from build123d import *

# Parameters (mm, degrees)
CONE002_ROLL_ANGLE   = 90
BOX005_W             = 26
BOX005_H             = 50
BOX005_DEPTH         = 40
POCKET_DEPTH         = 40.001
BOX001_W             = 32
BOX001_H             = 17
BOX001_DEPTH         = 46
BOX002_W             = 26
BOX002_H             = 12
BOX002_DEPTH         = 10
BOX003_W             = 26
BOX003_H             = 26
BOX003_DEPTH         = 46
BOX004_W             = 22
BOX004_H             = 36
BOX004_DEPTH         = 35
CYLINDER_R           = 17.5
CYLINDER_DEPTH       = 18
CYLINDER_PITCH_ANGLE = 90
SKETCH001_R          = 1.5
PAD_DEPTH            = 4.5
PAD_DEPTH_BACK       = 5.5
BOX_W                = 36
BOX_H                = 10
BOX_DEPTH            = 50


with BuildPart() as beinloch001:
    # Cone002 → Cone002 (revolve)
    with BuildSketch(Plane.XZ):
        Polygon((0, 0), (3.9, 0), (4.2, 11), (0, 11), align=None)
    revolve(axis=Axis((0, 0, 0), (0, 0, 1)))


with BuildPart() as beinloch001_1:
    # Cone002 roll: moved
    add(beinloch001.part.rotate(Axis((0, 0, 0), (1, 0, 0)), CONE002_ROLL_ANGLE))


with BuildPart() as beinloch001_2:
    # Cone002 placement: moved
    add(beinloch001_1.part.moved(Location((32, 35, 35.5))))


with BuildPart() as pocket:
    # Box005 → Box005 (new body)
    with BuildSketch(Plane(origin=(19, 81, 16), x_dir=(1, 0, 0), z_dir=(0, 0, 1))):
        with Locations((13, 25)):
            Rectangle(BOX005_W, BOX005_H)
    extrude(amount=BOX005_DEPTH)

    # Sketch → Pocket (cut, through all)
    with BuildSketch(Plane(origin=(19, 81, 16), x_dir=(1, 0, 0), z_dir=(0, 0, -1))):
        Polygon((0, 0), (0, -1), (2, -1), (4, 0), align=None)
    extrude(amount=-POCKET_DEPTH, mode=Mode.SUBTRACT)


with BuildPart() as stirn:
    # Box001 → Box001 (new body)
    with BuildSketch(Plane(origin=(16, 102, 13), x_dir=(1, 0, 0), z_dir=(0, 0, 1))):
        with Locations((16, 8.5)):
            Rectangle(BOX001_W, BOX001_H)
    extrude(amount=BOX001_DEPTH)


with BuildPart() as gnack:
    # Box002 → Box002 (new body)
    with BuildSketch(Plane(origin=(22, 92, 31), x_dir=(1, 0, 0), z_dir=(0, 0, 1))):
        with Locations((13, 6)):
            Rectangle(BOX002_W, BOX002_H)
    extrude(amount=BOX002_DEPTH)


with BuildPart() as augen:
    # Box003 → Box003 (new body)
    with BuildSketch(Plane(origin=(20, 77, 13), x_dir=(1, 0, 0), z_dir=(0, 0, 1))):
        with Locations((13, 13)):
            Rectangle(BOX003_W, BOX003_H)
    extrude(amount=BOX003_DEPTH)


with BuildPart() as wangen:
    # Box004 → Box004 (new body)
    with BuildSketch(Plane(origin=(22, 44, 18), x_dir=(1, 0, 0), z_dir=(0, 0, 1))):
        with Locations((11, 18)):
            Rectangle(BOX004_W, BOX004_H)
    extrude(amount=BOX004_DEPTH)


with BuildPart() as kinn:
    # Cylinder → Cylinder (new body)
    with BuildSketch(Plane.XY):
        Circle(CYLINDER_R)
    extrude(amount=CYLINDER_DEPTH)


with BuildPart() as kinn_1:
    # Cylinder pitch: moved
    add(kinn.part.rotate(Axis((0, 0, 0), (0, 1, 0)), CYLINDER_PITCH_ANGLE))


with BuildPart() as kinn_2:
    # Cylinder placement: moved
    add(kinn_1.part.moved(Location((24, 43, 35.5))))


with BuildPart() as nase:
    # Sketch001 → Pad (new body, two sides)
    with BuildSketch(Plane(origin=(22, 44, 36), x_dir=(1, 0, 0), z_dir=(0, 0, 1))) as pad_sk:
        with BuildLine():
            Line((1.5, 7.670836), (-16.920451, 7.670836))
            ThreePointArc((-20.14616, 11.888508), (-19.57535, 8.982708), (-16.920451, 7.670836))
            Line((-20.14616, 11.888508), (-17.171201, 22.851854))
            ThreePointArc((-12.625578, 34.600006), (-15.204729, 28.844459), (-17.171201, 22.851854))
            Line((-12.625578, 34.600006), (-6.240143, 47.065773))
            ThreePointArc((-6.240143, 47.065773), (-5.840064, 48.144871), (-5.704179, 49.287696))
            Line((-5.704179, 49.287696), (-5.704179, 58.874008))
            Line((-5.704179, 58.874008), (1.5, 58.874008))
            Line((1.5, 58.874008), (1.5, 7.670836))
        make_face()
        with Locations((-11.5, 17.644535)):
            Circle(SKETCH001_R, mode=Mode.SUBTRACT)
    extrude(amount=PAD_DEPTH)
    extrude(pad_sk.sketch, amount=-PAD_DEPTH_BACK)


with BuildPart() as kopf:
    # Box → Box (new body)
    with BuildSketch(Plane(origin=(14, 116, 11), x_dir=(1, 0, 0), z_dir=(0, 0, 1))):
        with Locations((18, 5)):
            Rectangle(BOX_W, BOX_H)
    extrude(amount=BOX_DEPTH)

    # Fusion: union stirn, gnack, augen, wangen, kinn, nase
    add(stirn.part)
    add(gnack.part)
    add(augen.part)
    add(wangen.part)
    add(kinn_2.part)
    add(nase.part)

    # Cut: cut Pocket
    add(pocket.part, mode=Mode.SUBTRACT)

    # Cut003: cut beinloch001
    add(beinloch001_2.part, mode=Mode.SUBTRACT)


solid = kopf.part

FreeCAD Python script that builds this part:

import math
import FreeCAD as App
import Part
import Sketcher
Q = App.Units.Quantity

doc = App.newDocument("Part")
body = doc.addObject("PartDesign::Body", "Body")

sketch1 = doc.addObject("Sketcher::SketchObject", "Sketch")
body.addObject(sketch1)
sketch1.AttachmentSupport = (doc.XZ_Plane, [""])
sketch1.MapMode = "FlatFace"
sketch1.addGeometry([
    Part.LineSegment(App.Vector(0, 0, 0), App.Vector(3.9, 0, 0)),
    Part.LineSegment(App.Vector(3.9, 0, 0), App.Vector(4.2, 11, 0)),
    Part.LineSegment(App.Vector(4.2, 11, 0), App.Vector(0, 11, 0)),
    Part.LineSegment(App.Vector(0, 11, 0), App.Vector(0, 0, 0)),
], False)
sketch1.addConstraint([
    Sketcher.Constraint("Coincident", 0, 2, 1, 1),
    Sketcher.Constraint("Coincident", 1, 2, 2, 1),
    Sketcher.Constraint("Coincident", 2, 2, 3, 1),
    Sketcher.Constraint("Coincident", 3, 2, 0, 1),
    Sketcher.Constraint("Horizontal", 0),
    Sketcher.Constraint("Horizontal", 2),
    Sketcher.Constraint("Vertical", 3),
    Sketcher.Constraint("Coincident", 3, 2, -1, 1),
    Sketcher.Constraint("DistanceY", 3, 2, 3, 1, Q("11 mm")),
    Sketcher.Constraint("DistanceX", 0, 1, 0, 2, Q("3.9 mm")),
    Sketcher.Constraint("DistanceX", 2, 2, 2, 1, Q("4.2 mm")),
])
revolution = doc.addObject("PartDesign::Revolution", "Revolution")
body.addObject(revolution)
revolution.Profile = sketch1
revolution.ReferenceAxis = (sketch1, ["V_Axis"])
revolution.Angle = 360
body2 = doc.addObject("PartDesign::Body", "Body001")
doc.recompute()

body.Placement = App.Placement(App.Vector(0, 0, 0), App.Rotation(App.Vector(1, 0, 0), 90))
boolean = doc.addObject("PartDesign::Boolean", "Boolean")
body2.addObject(boolean)
boolean.Type = "Fuse"
boolean.addObjects([body])
body3 = doc.addObject("PartDesign::Body", "Body002")
doc.recompute()

body2.Placement = App.Placement(App.Vector(32, 35, 35.5), App.Rotation(App.Vector(0, 0, 1), 0))
boolean2 = doc.addObject("PartDesign::Boolean", "Boolean001")
body3.addObject(boolean2)
boolean2.Type = "Fuse"
boolean2.addObjects([body2])
body4 = doc.addObject("PartDesign::Body", "Body003")

sketch2 = doc.addObject("Sketcher::SketchObject", "Sketch001")
body4.addObject(sketch2)
sketch2.AttachmentSupport = (doc.getObject("XY_Plane003"), [""])
sketch2.MapMode = "FlatFace"
sketch2.AttachmentOffset = App.Placement(App.Vector(0, 0, 16), App.Rotation())
sketch2.addGeometry([
    Part.LineSegment(App.Vector(19, 131, 0), App.Vector(19, 81, 0)),
    Part.LineSegment(App.Vector(19, 81, 0), App.Vector(45, 81, 0)),
    Part.LineSegment(App.Vector(45, 81, 0), App.Vector(45, 131, 0)),
    Part.LineSegment(App.Vector(45, 131, 0), App.Vector(19, 131, 0)),
], False)
sketch2.addConstraint([
    Sketcher.Constraint("Coincident", 0, 2, 1, 1),
    Sketcher.Constraint("Coincident", 1, 2, 2, 1),
    Sketcher.Constraint("Coincident", 2, 2, 3, 1),
    Sketcher.Constraint("Coincident", 3, 2, 0, 1),
    Sketcher.Constraint("Vertical", 0),
    Sketcher.Constraint("Horizontal", 1),
    Sketcher.Constraint("Vertical", 2),
    Sketcher.Constraint("Horizontal", 3),
    Sketcher.Constraint("DistanceX", 1, 1, 1, 2, Q("26 mm")),
    Sketcher.Constraint("DistanceY", 0, 2, 0, 1, Q("50 mm")),
    Sketcher.Constraint("DistanceX", -1, 1, 0, 2, Q("19 mm")),
    Sketcher.Constraint("DistanceY", -1, 1, 0, 2, Q("81 mm")),
])
pad1 = doc.addObject("PartDesign::Pad", "Pad")
body4.addObject(pad1)
pad1.Profile = sketch2
pad1.Length = 40

sketch3 = doc.addObject("Sketcher::SketchObject", "Sketch002")
body4.addObject(sketch3)
sketch3.AttachmentSupport = (doc.getObject("XY_Plane003"), [""])
sketch3.MapMode = "FlatFace"
sketch3.AttachmentOffset = App.Placement(App.Vector(0, 0, 16), App.Rotation())
sketch3.addGeometry([
    Part.LineSegment(App.Vector(19, 81, 0), App.Vector(19, 82, 0)),
    Part.LineSegment(App.Vector(19, 82, 0), App.Vector(21, 82, 0)),
    Part.LineSegment(App.Vector(21, 82, 0), App.Vector(23, 81, 0)),
    Part.LineSegment(App.Vector(23, 81, 0), App.Vector(19, 81, 0)),
], False)
sketch3.addConstraint([
    Sketcher.Constraint("Coincident", 0, 2, 1, 1),
    Sketcher.Constraint("Coincident", 1, 2, 2, 1),
    Sketcher.Constraint("Coincident", 2, 2, 3, 1),
    Sketcher.Constraint("Coincident", 3, 2, 0, 1),
    Sketcher.Constraint("Vertical", 0),
    Sketcher.Constraint("Horizontal", 1),
    Sketcher.Constraint("Horizontal", 3),
    Sketcher.Constraint("DistanceX", 1, 1, 1, 2, Q("2 mm")),
    Sketcher.Constraint("DistanceX", 3, 2, 3, 1, Q("4 mm")),
    Sketcher.Constraint("DistanceY", 0, 1, 0, 2, Q("1 mm")),
    Sketcher.Constraint("DistanceX", -1, 1, 0, 2, Q("19 mm")),
    Sketcher.Constraint("DistanceY", -1, 1, 0, 2, Q("82 mm")),
])
pocket1 = doc.addObject("PartDesign::Pocket", "Pocket")
body4.addObject(pocket1)
pocket1.Profile = sketch3
pocket1.Type = "ThroughAll"
pocket1.Reversed = True
body5 = doc.addObject("PartDesign::Body", "Body004")

sketch4 = doc.addObject("Sketcher::SketchObject", "Sketch003")
body5.addObject(sketch4)
sketch4.AttachmentSupport = (doc.getObject("XY_Plane004"), [""])
sketch4.MapMode = "FlatFace"
sketch4.AttachmentOffset = App.Placement(App.Vector(0, 0, 13), App.Rotation())
sketch4.addGeometry([
    Part.LineSegment(App.Vector(16, 119, 0), App.Vector(16, 102, 0)),
    Part.LineSegment(App.Vector(16, 102, 0), App.Vector(48, 102, 0)),
    Part.LineSegment(App.Vector(48, 102, 0), App.Vector(48, 119, 0)),
    Part.LineSegment(App.Vector(48, 119, 0), App.Vector(16, 119, 0)),
], False)
sketch4.addConstraint([
    Sketcher.Constraint("Coincident", 0, 2, 1, 1),
    Sketcher.Constraint("Coincident", 1, 2, 2, 1),
    Sketcher.Constraint("Coincident", 2, 2, 3, 1),
    Sketcher.Constraint("Coincident", 3, 2, 0, 1),
    Sketcher.Constraint("Vertical", 0),
    Sketcher.Constraint("Horizontal", 1),
    Sketcher.Constraint("Vertical", 2),
    Sketcher.Constraint("Horizontal", 3),
    Sketcher.Constraint("DistanceX", 1, 1, 1, 2, Q("32 mm")),
    Sketcher.Constraint("DistanceY", 0, 2, 0, 1, Q("17 mm")),
    Sketcher.Constraint("DistanceX", -1, 1, 0, 2, Q("16 mm")),
    Sketcher.Constraint("DistanceY", -1, 1, 0, 2, Q("102 mm")),
])
pad2 = doc.addObject("PartDesign::Pad", "Pad001")
body5.addObject(pad2)
pad2.Profile = sketch4
pad2.Length = 46
body6 = doc.addObject("PartDesign::Body", "Body005")

sketch5 = doc.addObject("Sketcher::SketchObject", "Sketch004")
body6.addObject(sketch5)
sketch5.AttachmentSupport = (doc.getObject("XY_Plane005"), [""])
sketch5.MapMode = "FlatFace"
sketch5.AttachmentOffset = App.Placement(App.Vector(0, 0, 31), App.Rotation())
sketch5.addGeometry([
    Part.LineSegment(App.Vector(22, 104, 0), App.Vector(22, 92, 0)),
    Part.LineSegment(App.Vector(22, 92, 0), App.Vector(48, 92, 0)),
    Part.LineSegment(App.Vector(48, 92, 0), App.Vector(48, 104, 0)),
    Part.LineSegment(App.Vector(48, 104, 0), App.Vector(22, 104, 0)),
], False)
sketch5.addConstraint([
    Sketcher.Constraint("Coincident", 0, 2, 1, 1),
    Sketcher.Constraint("Coincident", 1, 2, 2, 1),
    Sketcher.Constraint("Coincident", 2, 2, 3, 1),
    Sketcher.Constraint("Coincident", 3, 2, 0, 1),
    Sketcher.Constraint("Vertical", 0),
    Sketcher.Constraint("Horizontal", 1),
    Sketcher.Constraint("Vertical", 2),
    Sketcher.Constraint("Horizontal", 3),
    Sketcher.Constraint("DistanceX", 1, 1, 1, 2, Q("26 mm")),
    Sketcher.Constraint("DistanceY", 0, 2, 0, 1, Q("12 mm")),
    Sketcher.Constraint("DistanceX", -1, 1, 0, 2, Q("22 mm")),
    Sketcher.Constraint("DistanceY", -1, 1, 0, 2, Q("92 mm")),
])
pad3 = doc.addObject("PartDesign::Pad", "Pad002")
body6.addObject(pad3)
pad3.Profile = sketch5
pad3.Length = 10
body7 = doc.addObject("PartDesign::Body", "Body006")

sketch6 = doc.addObject("Sketcher::SketchObject", "Sketch005")
body7.addObject(sketch6)
sketch6.AttachmentSupport = (doc.getObject("XY_Plane006"), [""])
sketch6.MapMode = "FlatFace"
sketch6.AttachmentOffset = App.Placement(App.Vector(0, 0, 13), App.Rotation())
sketch6.addGeometry([
    Part.LineSegment(App.Vector(20, 103, 0), App.Vector(20, 77, 0)),
    Part.LineSegment(App.Vector(20, 77, 0), App.Vector(46, 77, 0)),
    Part.LineSegment(App.Vector(46, 77, 0), App.Vector(46, 103, 0)),
    Part.LineSegment(App.Vector(46, 103, 0), App.Vector(20, 103, 0)),
], False)
sketch6.addConstraint([
    Sketcher.Constraint("Coincident", 0, 2, 1, 1),
    Sketcher.Constraint("Coincident", 1, 2, 2, 1),
    Sketcher.Constraint("Coincident", 2, 2, 3, 1),
    Sketcher.Constraint("Coincident", 3, 2, 0, 1),
    Sketcher.Constraint("Vertical", 0),
    Sketcher.Constraint("Horizontal", 1),
    Sketcher.Constraint("Vertical", 2),
    Sketcher.Constraint("Horizontal", 3),
    Sketcher.Constraint("Equal", 3, 0),
    Sketcher.Constraint("DistanceX", 1, 1, 1, 2, Q("26 mm")),
    Sketcher.Constraint("DistanceX", -1, 1, 0, 2, Q("20 mm")),
    Sketcher.Constraint("DistanceY", -1, 1, 0, 2, Q("77 mm")),
])
pad4 = doc.addObject("PartDesign::Pad", "Pad003")
body7.addObject(pad4)
pad4.Profile = sketch6
pad4.Length = 46
body8 = doc.addObject("PartDesign::Body", "Body007")

sketch7 = doc.addObject("Sketcher::SketchObject", "Sketch006")
body8.addObject(sketch7)
sketch7.AttachmentSupport = (doc.getObject("XY_Plane007"), [""])
sketch7.MapMode = "FlatFace"
sketch7.AttachmentOffset = App.Placement(App.Vector(0, 0, 18), App.Rotation())
sketch7.addGeometry([
    Part.LineSegment(App.Vector(22, 80, 0), App.Vector(22, 44, 0)),
    Part.LineSegment(App.Vector(22, 44, 0), App.Vector(44, 44, 0)),
    Part.LineSegment(App.Vector(44, 44, 0), App.Vector(44, 80, 0)),
    Part.LineSegment(App.Vector(44, 80, 0), App.Vector(22, 80, 0)),
], False)
sketch7.addConstraint([
    Sketcher.Constraint("Coincident", 0, 2, 1, 1),
    Sketcher.Constraint("Coincident", 1, 2, 2, 1),
    Sketcher.Constraint("Coincident", 2, 2, 3, 1),
    Sketcher.Constraint("Coincident", 3, 2, 0, 1),
    Sketcher.Constraint("Vertical", 0),
    Sketcher.Constraint("Horizontal", 1),
    Sketcher.Constraint("Vertical", 2),
    Sketcher.Constraint("Horizontal", 3),
    Sketcher.Constraint("DistanceX", 1, 1, 1, 2, Q("22 mm")),
    Sketcher.Constraint("DistanceY", 0, 2, 0, 1, Q("36 mm")),
    Sketcher.Constraint("DistanceX", -1, 1, 0, 2, Q("22 mm")),
    Sketcher.Constraint("DistanceY", -1, 1, 0, 2, Q("44 mm")),
])
pad5 = doc.addObject("PartDesign::Pad", "Pad004")
body8.addObject(pad5)
pad5.Profile = sketch7
pad5.Length = 35
body9 = doc.addObject("PartDesign::Body", "Body008")

sketch8 = doc.addObject("Sketcher::SketchObject", "Sketch007")
body9.addObject(sketch8)
sketch8.AttachmentSupport = (doc.getObject("XY_Plane008"), [""])
sketch8.MapMode = "FlatFace"
sketch8.addGeometry(Part.Circle(App.Vector(0, 0, 0), App.Vector(0, 0, 1), 18), False)
sketch8.addConstraint([
    Sketcher.Constraint("Coincident", 0, 3, -1, 1),
    Sketcher.Constraint("Diameter", 0, Q("35 mm")),
])
pad6 = doc.addObject("PartDesign::Pad", "Pad005")
body9.addObject(pad6)
pad6.Profile = sketch8
pad6.Length = 18
body10 = doc.addObject("PartDesign::Body", "Body009")
doc.recompute()

body9.Placement = App.Placement(App.Vector(0, 0, 0), App.Rotation(App.Vector(0, 1, 0), 90))
boolean3 = doc.addObject("PartDesign::Boolean", "Boolean002")
body10.addObject(boolean3)
boolean3.Type = "Fuse"
boolean3.addObjects([body9])
body11 = doc.addObject("PartDesign::Body", "Body010")
doc.recompute()

body10.Placement = App.Placement(App.Vector(24, 43, 35.5), App.Rotation(App.Vector(0, 0, 1), 0))
boolean4 = doc.addObject("PartDesign::Boolean", "Boolean003")
body11.addObject(boolean4)
boolean4.Type = "Fuse"
boolean4.addObjects([body10])
body12 = doc.addObject("PartDesign::Body", "Body011")

sketch9 = doc.addObject("Sketcher::SketchObject", "Sketch008")
body12.addObject(sketch9)
sketch9.AttachmentSupport = (doc.getObject("XY_Plane011"), [""])
sketch9.MapMode = "FlatFace"
sketch9.AttachmentOffset = App.Placement(App.Vector(0, 0, 36), App.Rotation())
sketch9.addGeometry([
    Part.LineSegment(App.Vector(5.1, 51.7, 0), App.Vector(23.5, 51.7, 0)),
    Part.LineSegment(App.Vector(23.5, 51.7, 0), App.Vector(23.5, 102.9, 0)),
    Part.LineSegment(App.Vector(23.5, 102.9, 0), App.Vector(16.3, 102.9, 0)),
    Part.LineSegment(App.Vector(16.3, 102.9, 0), App.Vector(16.3, 93.3, 0)),
    Part.ArcOfCircle(Part.Circle(App.Vector(11.4, 93.3, 0), App.Vector(0, 0, 1), 4.9), math.radians(-27), math.radians(0)),
    Part.LineSegment(App.Vector(15.8, 91.1, 0), App.Vector(9.4, 78.6, 0)),
    Part.ArcOfCircle(Part.Circle(App.Vector(63.3, 51, 0), App.Vector(0, 0, 1), 60.6), math.radians(152.88), math.radians(164.82)),
    Part.LineSegment(App.Vector(4.8, 66.9, 0), App.Vector(1.9, 55.9, 0)),
    Part.ArcOfCircle(Part.Circle(App.Vector(5.1, 55, 0), App.Vector(0, 0, 1), 3.3), math.radians(165), math.radians(270)),
    Part.Circle(App.Vector(10.5, 61.6, 0), App.Vector(0, 0, 1), 1.5),
], False)
sketch9.addConstraint([
    Sketcher.Constraint("Coincident", 0, 2, 1, 1),
    Sketcher.Constraint("Coincident", 1, 2, 2, 1),
    Sketcher.Constraint("Coincident", 2, 2, 3, 1),
    Sketcher.Constraint("Tangent", 3, 2, 4, 2),
    Sketcher.Constraint("Tangent", 4, 1, 5, 1),
    Sketcher.Constraint("Tangent", 5, 2, 6, 1),
    Sketcher.Constraint("Tangent", 6, 2, 7, 1),
    Sketcher.Constraint("Tangent", 7, 2, 8, 1),
    Sketcher.Constraint("Tangent", 8, 2, 0, 1),
    Sketcher.Constraint("Horizontal", 0),
    Sketcher.Constraint("Vertical", 1),
    Sketcher.Constraint("Horizontal", 2),
    Sketcher.Constraint("Vertical", 3),
    Sketcher.Constraint("Diameter", 9, Q("3 mm")),
    Sketcher.Constraint("DistanceX", 9, 3, 0, 2, Q("13 mm")),
    Sketcher.Constraint("DistanceX", -1, 1, 9, 3, Q("10.5 mm")),
    Sketcher.Constraint("Radius", 4, Q("4.873638 mm")),
    Sketcher.Constraint("Radius", 8, Q("3.34236 mm")),
    Sketcher.Constraint("Radius", 6, Q("60.550807 mm")),
    Sketcher.Constraint("DistanceX", 0, 1, 0, 2, Q("18.420451 mm")),
    Sketcher.Constraint("DistanceX", 2, 2, 2, 1, Q("7.204179 mm")),
    Sketcher.Constraint("DistanceX", -1, 1, 6, 2, Q("4.828799 mm")),
    Sketcher.Constraint("DistanceY", 0, 2, 9, 3, Q("9.973699 mm")),
    Sketcher.Constraint("DistanceY", 8, 3, 3, 2, Q("38.2745 mm")),
    Sketcher.Constraint("DistanceX", 5, 2, 3, 2, Q("6.921399 mm")),
    Sketcher.Constraint("DistanceY", 1, 1, 1, 2, Q("51.203172 mm")),
    Sketcher.Constraint("DistanceY", -1, 1, 6, 3, Q("50.99454 mm")),
])
pad7 = doc.addObject("PartDesign::Pad", "Pad006")
body12.addObject(pad7)
pad7.Profile = sketch9
pad7.Type = "TwoLengths"
pad7.Length = 4.5
pad7.Length2 = 5.5
body13 = doc.addObject("PartDesign::Body", "Body012")

sketch10 = doc.addObject("Sketcher::SketchObject", "Sketch009")
body13.addObject(sketch10)
sketch10.AttachmentSupport = (doc.getObject("XY_Plane012"), [""])
sketch10.MapMode = "FlatFace"
sketch10.AttachmentOffset = App.Placement(App.Vector(0, 0, 11), App.Rotation())
sketch10.addGeometry([
    Part.LineSegment(App.Vector(14, 126, 0), App.Vector(14, 116, 0)),
    Part.LineSegment(App.Vector(14, 116, 0), App.Vector(50, 116, 0)),
    Part.LineSegment(App.Vector(50, 116, 0), App.Vector(50, 126, 0)),
    Part.LineSegment(App.Vector(50, 126, 0), App.Vector(14, 126, 0)),
], False)
sketch10.addConstraint([
    Sketcher.Constraint("Coincident", 0, 2, 1, 1),
    Sketcher.Constraint("Coincident", 1, 2, 2, 1),
    Sketcher.Constraint("Coincident", 2, 2, 3, 1),
    Sketcher.Constraint("Coincident", 3, 2, 0, 1),
    Sketcher.Constraint("Vertical", 0),
    Sketcher.Constraint("Horizontal", 1),
    Sketcher.Constraint("Vertical", 2),
    Sketcher.Constraint("Horizontal", 3),
    Sketcher.Constraint("DistanceX", 1, 1, 1, 2, Q("36 mm")),
    Sketcher.Constraint("DistanceY", 0, 2, 0, 1, Q("10 mm")),
    Sketcher.Constraint("DistanceX", -1, 1, 0, 2, Q("14 mm")),
    Sketcher.Constraint("DistanceY", -1, 1, 0, 2, Q("116 mm")),
])
pad8 = doc.addObject("PartDesign::Pad", "Pad007")
body13.addObject(pad8)
pad8.Profile = sketch10
pad8.Length = 50
doc.recompute()

boolean5 = doc.addObject("PartDesign::Boolean", "Boolean004")
body13.addObject(boolean5)
boolean5.Type = "Fuse"
boolean5.addObjects([body5])
doc.recompute()

boolean6 = doc.addObject("PartDesign::Boolean", "Boolean005")
body13.addObject(boolean6)
boolean6.Type = "Fuse"
boolean6.addObjects([body6])
doc.recompute()

boolean7 = doc.addObject("PartDesign::Boolean", "Boolean006")
body13.addObject(boolean7)
boolean7.Type = "Fuse"
boolean7.addObjects([body7])
doc.recompute()

boolean8 = doc.addObject("PartDesign::Boolean", "Boolean007")
body13.addObject(boolean8)
boolean8.Type = "Fuse"
boolean8.addObjects([body8])
doc.recompute()

boolean9 = doc.addObject("PartDesign::Boolean", "Boolean008")
body13.addObject(boolean9)
boolean9.Type = "Fuse"
boolean9.addObjects([body11])
doc.recompute()

boolean10 = doc.addObject("PartDesign::Boolean", "Boolean009")
body13.addObject(boolean10)
boolean10.Type = "Fuse"
boolean10.addObjects([body12])
doc.recompute()

boolean11 = doc.addObject("PartDesign::Boolean", "Boolean010")
body13.addObject(boolean11)
boolean11.Type = "Cut"
boolean11.addObjects([body4])
doc.recompute()

boolean12 = doc.addObject("PartDesign::Boolean", "Boolean011")
body13.addObject(boolean12)
boolean12.Type = "Cut"
boolean12.addObjects([body3])

doc.recompute()
